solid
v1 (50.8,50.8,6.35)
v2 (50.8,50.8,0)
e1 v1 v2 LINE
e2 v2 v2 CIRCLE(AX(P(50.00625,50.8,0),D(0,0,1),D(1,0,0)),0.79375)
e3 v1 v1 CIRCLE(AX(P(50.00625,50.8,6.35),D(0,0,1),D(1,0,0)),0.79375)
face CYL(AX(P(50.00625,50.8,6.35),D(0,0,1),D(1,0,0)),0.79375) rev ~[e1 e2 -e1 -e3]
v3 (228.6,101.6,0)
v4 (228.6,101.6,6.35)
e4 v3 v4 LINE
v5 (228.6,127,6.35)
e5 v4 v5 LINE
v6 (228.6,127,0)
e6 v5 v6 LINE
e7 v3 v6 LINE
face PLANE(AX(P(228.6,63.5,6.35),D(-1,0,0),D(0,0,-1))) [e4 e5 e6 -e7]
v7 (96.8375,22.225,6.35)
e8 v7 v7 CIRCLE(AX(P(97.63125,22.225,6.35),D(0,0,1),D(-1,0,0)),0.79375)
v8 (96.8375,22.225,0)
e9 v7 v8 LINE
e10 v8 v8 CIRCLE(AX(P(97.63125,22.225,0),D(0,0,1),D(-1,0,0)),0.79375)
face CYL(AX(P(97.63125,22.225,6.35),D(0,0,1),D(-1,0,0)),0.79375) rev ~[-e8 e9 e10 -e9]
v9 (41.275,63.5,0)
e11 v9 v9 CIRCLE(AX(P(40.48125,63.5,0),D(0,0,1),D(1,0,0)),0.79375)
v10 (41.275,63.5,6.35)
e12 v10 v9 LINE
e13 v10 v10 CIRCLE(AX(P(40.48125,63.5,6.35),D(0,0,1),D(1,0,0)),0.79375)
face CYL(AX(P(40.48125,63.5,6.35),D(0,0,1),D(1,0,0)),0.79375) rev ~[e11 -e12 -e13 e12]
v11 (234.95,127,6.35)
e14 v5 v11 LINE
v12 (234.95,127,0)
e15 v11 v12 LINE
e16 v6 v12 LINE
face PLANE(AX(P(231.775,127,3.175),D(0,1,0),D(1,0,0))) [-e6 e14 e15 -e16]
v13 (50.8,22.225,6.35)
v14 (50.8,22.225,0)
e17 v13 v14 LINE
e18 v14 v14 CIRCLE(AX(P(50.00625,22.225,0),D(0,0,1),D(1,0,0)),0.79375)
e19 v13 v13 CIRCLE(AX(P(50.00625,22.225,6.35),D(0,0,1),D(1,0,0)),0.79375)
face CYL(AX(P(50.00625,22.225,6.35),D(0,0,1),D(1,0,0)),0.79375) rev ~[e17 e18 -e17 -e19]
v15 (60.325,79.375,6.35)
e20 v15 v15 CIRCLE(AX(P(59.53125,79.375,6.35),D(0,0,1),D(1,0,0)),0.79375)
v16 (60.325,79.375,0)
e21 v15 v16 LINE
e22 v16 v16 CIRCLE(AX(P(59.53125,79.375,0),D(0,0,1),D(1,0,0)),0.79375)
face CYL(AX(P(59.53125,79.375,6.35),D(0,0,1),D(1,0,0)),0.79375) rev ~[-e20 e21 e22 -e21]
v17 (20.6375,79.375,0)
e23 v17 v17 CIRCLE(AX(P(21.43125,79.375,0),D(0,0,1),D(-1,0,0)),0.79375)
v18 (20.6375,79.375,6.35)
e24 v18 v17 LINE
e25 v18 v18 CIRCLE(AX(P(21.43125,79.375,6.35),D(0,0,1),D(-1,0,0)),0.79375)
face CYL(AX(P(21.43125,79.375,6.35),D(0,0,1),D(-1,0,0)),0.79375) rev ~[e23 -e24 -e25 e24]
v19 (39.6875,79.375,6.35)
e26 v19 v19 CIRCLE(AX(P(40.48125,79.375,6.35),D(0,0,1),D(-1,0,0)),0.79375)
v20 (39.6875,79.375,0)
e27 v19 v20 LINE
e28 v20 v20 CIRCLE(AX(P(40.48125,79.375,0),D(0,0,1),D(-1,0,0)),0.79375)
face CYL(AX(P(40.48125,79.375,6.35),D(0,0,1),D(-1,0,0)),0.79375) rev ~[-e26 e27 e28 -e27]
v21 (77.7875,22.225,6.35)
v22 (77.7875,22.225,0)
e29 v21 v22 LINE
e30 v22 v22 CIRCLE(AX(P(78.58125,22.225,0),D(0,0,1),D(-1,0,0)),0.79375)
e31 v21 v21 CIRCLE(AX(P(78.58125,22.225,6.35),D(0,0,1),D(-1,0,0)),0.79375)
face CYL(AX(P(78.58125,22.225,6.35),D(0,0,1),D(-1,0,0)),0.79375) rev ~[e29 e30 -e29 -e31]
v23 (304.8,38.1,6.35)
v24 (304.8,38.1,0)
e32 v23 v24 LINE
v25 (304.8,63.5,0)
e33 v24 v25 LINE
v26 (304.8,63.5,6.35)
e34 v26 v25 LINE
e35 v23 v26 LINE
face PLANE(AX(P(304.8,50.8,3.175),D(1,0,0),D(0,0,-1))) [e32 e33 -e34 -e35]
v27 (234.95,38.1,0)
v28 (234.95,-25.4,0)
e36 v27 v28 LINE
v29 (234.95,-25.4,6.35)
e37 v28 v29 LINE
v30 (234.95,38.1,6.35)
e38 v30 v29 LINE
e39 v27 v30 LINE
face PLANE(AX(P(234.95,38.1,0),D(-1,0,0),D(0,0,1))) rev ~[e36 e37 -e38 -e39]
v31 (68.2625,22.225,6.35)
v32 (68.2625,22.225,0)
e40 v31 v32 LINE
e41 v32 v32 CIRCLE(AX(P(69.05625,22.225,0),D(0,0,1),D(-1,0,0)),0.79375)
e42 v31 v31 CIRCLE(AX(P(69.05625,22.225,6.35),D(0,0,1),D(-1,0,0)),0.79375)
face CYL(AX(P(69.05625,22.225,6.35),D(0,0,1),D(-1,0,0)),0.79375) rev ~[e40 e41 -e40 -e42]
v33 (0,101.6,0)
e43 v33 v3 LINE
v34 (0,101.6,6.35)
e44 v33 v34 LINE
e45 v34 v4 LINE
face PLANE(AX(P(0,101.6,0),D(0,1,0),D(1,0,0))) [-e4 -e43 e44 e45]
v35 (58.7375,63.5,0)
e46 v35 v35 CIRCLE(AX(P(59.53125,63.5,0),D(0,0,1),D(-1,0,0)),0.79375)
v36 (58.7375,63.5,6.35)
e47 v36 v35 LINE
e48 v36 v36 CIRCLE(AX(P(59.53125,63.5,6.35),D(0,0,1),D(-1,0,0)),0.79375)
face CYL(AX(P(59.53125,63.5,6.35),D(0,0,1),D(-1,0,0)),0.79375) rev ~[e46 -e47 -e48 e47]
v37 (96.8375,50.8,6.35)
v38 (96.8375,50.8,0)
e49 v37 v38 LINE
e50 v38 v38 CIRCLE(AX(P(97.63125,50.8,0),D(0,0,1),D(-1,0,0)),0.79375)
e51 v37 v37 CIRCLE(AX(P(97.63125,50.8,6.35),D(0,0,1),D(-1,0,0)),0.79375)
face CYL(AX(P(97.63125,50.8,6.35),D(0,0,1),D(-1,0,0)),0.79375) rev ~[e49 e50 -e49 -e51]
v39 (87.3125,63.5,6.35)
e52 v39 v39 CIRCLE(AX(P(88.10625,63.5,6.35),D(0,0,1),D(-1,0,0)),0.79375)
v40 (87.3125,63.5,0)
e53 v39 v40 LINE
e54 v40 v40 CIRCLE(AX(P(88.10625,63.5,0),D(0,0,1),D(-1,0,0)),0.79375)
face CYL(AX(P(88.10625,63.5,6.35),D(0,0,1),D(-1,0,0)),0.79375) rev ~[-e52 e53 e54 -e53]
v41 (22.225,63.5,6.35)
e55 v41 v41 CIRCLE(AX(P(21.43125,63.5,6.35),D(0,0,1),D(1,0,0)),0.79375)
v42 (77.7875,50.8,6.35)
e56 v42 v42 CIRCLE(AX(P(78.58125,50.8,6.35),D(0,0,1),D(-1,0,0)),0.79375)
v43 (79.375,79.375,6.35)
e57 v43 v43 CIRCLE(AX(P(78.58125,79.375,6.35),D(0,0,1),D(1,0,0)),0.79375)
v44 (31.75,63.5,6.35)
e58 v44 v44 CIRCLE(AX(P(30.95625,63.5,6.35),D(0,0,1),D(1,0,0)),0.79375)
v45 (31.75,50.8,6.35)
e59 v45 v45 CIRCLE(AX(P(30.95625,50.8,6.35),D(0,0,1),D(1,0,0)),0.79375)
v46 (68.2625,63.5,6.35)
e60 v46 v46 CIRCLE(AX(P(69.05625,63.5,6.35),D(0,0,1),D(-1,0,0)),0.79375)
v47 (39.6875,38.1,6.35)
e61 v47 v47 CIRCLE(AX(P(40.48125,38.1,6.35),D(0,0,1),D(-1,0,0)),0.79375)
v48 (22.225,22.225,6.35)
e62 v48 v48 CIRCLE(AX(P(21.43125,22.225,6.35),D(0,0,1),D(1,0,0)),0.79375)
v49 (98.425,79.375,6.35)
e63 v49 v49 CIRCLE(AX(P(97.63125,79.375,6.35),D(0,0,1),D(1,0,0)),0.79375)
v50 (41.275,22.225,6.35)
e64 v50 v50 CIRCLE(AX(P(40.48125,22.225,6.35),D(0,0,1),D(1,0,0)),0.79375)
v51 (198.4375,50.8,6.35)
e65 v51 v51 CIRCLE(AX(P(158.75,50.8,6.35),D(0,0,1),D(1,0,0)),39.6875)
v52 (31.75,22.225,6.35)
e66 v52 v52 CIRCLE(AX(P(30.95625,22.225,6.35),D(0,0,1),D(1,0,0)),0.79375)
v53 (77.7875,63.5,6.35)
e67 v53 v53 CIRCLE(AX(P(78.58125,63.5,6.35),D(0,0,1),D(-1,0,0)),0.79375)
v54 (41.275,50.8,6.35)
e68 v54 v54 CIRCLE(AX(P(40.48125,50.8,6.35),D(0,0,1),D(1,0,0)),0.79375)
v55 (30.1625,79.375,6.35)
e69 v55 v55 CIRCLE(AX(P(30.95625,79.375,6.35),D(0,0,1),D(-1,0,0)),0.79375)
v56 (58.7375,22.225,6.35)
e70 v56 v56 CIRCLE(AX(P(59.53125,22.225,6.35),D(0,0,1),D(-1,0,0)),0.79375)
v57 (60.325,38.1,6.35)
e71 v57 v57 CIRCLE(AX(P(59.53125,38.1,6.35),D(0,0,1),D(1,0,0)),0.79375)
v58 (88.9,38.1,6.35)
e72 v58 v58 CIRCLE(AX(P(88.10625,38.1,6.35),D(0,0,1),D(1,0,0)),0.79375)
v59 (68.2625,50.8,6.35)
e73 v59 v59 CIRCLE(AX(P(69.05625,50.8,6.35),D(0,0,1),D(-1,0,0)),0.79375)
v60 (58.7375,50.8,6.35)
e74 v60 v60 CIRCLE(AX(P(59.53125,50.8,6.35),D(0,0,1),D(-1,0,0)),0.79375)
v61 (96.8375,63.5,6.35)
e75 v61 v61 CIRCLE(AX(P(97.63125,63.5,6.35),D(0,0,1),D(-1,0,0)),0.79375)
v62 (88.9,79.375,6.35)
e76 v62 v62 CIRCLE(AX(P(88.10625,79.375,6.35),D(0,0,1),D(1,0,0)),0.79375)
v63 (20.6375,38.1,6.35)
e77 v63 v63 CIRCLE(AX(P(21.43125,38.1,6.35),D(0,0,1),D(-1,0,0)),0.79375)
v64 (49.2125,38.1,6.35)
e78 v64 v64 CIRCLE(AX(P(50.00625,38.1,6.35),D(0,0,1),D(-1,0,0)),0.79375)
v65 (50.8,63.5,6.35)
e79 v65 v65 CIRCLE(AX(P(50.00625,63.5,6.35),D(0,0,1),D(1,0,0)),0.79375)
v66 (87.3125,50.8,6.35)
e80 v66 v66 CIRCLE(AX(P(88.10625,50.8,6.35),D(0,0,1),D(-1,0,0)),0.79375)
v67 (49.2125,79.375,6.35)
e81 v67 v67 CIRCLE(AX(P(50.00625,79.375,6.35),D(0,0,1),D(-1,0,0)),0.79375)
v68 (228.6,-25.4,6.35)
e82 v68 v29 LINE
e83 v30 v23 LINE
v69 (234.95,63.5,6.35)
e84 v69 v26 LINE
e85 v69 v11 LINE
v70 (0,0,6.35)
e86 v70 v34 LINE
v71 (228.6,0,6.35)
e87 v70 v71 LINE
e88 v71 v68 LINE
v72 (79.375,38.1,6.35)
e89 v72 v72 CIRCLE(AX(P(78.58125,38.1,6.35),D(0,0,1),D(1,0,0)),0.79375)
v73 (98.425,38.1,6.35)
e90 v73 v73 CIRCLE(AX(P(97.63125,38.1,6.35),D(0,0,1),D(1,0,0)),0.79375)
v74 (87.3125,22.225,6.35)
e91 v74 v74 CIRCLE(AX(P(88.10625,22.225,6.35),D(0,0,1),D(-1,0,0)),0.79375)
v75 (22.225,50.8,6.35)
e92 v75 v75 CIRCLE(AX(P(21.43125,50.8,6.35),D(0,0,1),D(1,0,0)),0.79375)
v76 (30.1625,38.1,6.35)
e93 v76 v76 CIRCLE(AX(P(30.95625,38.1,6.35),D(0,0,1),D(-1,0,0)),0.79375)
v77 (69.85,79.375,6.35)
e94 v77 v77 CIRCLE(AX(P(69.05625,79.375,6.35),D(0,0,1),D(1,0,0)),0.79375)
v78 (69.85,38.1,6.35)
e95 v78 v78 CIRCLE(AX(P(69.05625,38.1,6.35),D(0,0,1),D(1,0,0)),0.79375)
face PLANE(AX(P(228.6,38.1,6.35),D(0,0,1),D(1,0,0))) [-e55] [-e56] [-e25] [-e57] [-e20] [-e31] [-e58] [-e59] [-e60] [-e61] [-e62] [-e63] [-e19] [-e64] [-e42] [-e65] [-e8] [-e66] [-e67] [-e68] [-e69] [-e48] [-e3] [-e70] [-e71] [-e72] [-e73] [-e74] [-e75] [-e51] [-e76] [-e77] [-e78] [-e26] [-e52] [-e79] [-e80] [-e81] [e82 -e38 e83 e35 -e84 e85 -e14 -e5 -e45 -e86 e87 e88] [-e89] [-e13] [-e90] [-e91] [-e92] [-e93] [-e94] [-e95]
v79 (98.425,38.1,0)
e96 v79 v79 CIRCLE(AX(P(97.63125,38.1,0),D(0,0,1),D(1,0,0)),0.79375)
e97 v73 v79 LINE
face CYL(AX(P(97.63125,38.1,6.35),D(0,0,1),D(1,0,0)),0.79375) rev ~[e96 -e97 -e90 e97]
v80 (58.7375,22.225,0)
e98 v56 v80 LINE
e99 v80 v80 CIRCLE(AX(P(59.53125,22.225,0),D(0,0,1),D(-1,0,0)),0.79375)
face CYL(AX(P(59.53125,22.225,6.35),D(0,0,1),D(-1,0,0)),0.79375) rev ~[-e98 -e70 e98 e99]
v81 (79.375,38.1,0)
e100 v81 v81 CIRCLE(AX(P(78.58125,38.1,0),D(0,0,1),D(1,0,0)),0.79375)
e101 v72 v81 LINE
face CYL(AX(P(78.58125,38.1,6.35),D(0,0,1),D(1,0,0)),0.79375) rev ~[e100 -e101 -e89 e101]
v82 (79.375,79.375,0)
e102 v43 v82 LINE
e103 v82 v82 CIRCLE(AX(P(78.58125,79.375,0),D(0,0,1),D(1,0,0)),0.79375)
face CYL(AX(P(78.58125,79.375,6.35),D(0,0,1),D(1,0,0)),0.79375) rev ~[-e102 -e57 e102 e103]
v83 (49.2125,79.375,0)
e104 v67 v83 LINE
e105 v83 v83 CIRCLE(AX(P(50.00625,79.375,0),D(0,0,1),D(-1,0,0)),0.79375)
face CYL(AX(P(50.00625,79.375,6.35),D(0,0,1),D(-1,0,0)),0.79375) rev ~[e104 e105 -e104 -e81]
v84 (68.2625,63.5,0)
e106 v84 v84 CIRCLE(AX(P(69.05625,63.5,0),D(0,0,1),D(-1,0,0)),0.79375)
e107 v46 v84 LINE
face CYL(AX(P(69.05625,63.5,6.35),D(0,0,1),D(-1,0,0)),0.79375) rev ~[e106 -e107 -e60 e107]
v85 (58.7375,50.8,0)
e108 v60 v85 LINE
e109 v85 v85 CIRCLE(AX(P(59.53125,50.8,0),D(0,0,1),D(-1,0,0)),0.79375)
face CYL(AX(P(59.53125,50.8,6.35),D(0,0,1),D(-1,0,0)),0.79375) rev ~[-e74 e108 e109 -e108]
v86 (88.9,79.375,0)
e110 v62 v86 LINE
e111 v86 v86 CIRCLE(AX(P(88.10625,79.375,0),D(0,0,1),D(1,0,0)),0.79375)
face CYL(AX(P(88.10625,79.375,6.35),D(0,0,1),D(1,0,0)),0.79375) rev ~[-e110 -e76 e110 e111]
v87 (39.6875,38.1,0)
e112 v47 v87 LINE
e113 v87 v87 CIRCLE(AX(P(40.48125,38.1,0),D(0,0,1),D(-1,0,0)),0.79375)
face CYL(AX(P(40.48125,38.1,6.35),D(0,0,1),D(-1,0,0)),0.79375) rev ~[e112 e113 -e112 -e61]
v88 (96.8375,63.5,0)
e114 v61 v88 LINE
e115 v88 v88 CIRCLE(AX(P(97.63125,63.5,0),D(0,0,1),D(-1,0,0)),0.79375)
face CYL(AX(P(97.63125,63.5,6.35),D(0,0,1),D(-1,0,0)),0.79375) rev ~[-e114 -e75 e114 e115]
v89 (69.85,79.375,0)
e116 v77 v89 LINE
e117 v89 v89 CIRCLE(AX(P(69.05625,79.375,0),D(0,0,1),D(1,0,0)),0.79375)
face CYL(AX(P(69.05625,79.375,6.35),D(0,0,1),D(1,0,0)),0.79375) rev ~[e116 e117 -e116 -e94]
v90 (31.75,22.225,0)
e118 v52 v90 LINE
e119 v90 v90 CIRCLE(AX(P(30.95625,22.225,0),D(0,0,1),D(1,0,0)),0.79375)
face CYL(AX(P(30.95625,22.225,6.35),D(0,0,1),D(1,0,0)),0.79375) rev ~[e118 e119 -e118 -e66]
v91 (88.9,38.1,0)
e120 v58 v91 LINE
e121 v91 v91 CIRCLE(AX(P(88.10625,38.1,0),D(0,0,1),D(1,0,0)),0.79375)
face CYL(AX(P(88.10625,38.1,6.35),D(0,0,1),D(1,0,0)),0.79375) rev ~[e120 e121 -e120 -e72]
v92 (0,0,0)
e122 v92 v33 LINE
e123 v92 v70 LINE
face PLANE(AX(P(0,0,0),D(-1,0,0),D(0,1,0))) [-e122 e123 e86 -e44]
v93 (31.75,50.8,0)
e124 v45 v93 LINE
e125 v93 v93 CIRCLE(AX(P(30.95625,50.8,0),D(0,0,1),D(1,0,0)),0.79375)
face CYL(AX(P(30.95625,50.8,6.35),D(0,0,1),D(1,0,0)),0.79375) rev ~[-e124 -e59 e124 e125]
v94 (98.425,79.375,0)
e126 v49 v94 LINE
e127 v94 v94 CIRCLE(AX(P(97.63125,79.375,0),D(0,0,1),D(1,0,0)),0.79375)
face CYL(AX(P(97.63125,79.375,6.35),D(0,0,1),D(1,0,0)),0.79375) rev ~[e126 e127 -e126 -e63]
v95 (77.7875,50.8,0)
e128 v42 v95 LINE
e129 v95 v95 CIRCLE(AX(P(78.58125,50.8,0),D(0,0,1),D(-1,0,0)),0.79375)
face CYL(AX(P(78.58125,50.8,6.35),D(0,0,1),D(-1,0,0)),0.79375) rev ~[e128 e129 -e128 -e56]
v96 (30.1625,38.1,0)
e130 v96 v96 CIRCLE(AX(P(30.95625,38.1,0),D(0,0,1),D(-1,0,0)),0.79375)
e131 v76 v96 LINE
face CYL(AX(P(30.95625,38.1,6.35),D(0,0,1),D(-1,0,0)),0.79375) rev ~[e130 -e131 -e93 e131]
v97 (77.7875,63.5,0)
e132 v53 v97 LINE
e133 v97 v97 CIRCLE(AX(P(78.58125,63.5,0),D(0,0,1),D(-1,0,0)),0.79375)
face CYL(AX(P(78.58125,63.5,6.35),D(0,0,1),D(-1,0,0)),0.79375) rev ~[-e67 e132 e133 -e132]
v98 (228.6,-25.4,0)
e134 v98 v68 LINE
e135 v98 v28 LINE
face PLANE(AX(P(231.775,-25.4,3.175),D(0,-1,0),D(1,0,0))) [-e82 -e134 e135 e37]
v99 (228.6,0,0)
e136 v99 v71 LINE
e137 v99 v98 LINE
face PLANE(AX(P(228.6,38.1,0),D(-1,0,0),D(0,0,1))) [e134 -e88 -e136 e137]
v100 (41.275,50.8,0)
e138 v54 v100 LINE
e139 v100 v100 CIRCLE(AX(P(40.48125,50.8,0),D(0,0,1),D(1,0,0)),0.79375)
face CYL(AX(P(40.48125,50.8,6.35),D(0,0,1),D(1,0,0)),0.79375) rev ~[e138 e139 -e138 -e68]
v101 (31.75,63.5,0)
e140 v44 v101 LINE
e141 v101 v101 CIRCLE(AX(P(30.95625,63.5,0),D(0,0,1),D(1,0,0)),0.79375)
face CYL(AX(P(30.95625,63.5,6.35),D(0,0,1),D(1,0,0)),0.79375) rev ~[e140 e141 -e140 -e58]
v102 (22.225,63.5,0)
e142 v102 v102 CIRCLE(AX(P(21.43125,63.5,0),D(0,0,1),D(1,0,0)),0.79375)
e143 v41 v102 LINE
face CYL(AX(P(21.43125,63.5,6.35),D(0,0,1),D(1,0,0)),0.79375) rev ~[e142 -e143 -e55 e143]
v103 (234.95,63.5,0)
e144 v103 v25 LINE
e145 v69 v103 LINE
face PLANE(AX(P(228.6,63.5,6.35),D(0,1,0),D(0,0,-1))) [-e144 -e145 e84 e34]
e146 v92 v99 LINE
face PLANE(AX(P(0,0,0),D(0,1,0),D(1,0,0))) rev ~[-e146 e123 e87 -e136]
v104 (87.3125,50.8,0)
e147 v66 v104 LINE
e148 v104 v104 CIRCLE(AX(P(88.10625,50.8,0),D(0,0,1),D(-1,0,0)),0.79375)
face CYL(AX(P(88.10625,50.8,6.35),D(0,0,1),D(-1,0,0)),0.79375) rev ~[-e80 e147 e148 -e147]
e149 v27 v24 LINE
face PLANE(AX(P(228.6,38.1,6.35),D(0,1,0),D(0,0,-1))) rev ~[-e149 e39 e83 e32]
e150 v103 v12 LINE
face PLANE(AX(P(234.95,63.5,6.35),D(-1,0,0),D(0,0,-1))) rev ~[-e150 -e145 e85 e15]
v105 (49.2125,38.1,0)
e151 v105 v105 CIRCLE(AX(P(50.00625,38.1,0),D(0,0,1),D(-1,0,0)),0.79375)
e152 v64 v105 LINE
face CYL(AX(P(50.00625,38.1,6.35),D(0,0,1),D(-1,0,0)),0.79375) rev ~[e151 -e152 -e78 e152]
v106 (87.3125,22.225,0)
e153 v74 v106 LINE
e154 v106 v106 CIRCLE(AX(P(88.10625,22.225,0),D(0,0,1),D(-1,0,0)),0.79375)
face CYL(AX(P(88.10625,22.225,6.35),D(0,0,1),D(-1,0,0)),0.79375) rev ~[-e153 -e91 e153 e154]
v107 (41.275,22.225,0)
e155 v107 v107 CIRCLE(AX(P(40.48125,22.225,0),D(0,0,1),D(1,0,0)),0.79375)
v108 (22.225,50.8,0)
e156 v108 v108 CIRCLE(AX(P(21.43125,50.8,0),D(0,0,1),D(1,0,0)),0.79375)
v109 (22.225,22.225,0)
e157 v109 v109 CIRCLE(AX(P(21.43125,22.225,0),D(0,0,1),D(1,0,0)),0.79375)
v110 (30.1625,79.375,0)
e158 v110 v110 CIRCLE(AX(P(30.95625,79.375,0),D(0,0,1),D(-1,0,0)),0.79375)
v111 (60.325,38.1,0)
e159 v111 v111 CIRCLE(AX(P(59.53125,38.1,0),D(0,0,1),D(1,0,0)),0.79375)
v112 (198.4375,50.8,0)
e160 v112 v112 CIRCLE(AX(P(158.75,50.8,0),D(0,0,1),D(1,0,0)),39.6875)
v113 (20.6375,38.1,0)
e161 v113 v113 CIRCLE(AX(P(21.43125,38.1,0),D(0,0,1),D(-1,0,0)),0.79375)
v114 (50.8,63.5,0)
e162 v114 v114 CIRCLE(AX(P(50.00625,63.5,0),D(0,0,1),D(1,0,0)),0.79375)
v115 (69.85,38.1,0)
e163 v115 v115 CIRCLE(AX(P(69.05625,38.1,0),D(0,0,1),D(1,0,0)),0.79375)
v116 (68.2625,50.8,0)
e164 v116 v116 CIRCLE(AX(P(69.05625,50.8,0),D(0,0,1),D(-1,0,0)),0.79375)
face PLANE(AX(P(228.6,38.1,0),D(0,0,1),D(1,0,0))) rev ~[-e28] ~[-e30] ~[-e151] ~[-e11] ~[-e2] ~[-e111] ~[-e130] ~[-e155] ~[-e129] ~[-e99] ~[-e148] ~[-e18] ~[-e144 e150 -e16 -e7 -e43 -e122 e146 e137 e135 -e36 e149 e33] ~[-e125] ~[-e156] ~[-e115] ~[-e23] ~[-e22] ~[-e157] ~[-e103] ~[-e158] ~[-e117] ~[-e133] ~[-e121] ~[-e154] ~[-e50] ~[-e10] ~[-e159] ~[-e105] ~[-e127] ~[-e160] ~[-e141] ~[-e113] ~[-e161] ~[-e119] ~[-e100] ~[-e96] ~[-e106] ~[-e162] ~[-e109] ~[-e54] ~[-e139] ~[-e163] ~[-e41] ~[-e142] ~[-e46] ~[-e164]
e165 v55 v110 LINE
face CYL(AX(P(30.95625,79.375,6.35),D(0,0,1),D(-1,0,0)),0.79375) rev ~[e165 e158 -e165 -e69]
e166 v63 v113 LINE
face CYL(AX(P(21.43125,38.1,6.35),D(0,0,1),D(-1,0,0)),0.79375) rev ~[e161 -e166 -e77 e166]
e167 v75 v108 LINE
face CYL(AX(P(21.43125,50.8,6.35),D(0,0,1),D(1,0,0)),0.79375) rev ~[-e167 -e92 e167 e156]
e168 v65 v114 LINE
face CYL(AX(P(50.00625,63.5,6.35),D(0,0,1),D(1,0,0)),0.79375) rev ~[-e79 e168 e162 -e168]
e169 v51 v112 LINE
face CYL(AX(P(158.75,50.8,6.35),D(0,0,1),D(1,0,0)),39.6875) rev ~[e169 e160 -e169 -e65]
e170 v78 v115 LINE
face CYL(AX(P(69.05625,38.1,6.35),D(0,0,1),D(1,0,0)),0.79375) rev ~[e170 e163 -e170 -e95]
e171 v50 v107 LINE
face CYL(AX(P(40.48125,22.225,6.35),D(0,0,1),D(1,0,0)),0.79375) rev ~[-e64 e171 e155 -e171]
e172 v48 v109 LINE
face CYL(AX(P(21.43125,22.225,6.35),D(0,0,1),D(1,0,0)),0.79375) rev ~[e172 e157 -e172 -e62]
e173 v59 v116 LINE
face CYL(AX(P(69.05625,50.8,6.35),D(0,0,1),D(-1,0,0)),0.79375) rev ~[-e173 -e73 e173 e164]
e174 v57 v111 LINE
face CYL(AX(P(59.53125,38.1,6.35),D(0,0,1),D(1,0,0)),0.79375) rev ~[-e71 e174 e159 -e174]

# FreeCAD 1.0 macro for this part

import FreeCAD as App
import Part
import Sketcher
Q = App.Units.Quantity

doc = App.newDocument("Part")
params = doc.addObject("Spreadsheet::Sheet", "Params")
for row, (alias, value) in enumerate([
    ("sketch1_width", "9 in"),
    ("sketch1_height", "4 in"),
    ("pad1_length", "0.25 in"),
    ("sketch2_diameter", "3.125 in"),
    ("pocket1_length", "3 in"),
    ("sketch3_width", "1 in"),
    ("sketch3_height", "0.25 in"),
    ("pad2_length", "3 in"),
    ("sketch4_width", "0.25 in"),
    ("pad3_length", "2.5 in"),
    ("sketch5_width", "0.25 in"),
    ("pad4_length", "2.5 in"),
    ("sketch6_diameter", "0.0625 in"),
    ("pocket2_length", "2 in"),
], start=1):
    params.set(f"A{row}", alias)
    params.set(f"B{row}", "=" + value)
    params.setAlias(f"B{row}", alias)

body = doc.addObject("PartDesign::Body", "Body")

# Sketch on XY plane
sketch1 = body.newObject("Sketcher::SketchObject", "Sketch")
sketch1.AttachmentSupport = (doc.getObject("XY_Plane"), [""])
sketch1.MapMode = "FlatFace"
sketch1.addGeometry(Part.LineSegment(App.Vector(0, 101.6, 0), App.Vector(0, 0, 0)), False)
sketch1.addGeometry(Part.LineSegment(App.Vector(0, 0, 0), App.Vector(228.6, 0, 0)), False)
sketch1.addGeometry(Part.LineSegment(App.Vector(228.6, 0, 0), App.Vector(228.6, 101.6, 0)), False)
sketch1.addGeometry(Part.LineSegment(App.Vector(228.6, 101.6, 0), App.Vector(0, 101.6, 0)), False)
sketch1.addConstraint(Sketcher.Constraint("Coincident", 0, 2, 1, 1))
sketch1.addConstraint(Sketcher.Constraint("Coincident", 1, 2, 2, 1))
sketch1.addConstraint(Sketcher.Constraint("Coincident", 2, 2, 3, 1))
sketch1.addConstraint(Sketcher.Constraint("Coincident", 3, 2, 0, 1))
sketch1.addConstraint(Sketcher.Constraint("Vertical", 0))
sketch1.addConstraint(Sketcher.Constraint("Horizontal", 1))
sketch1.addConstraint(Sketcher.Constraint("Vertical", 2))
sketch1.addConstraint(Sketcher.Constraint("Horizontal", 3))
sketch1.addConstraint(Sketcher.Constraint("Coincident", 0, 2, -1, 1))
sketch1.addConstraint(Sketcher.Constraint("DistanceX", 1, 1, 1, 2, Q("9 in")))
sketch1.addConstraint(Sketcher.Constraint("DistanceY", 0, 2, 0, 1, Q("4 in")))
sketch1.setExpression("Constraints[9]", "Params.sketch1_width")
sketch1.setExpression("Constraints[10]", "Params.sketch1_height")
pad1 = body.newObject("PartDesign::Pad", "Pad")
pad1.Profile = sketch1
pad1.setExpression("Length", "Params.pad1_length")

# Sketch on XY plane
sketch2 = body.newObject("Sketcher::SketchObject", "Sketch001")
sketch2.AttachmentSupport = (doc.getObject("XY_Plane"), [""])
sketch2.MapMode = "FlatFace"
sketch2.AttachmentOffset = App.Placement(App.Vector(0, 0, 0.25 * 25.4), App.Rotation())
sketch2.addGeometry(Part.Circle(App.Vector(158.75, 50.8, 0), App.Vector(0, 0, 1), 39.6875), False)
sketch2.addConstraint(Sketcher.Constraint("Diameter", 0, Q("3.125 in")))
sketch2.addConstraint(Sketcher.Constraint("DistanceY", -1, 1, 0, 3, Q("2 in")))
sketch2.addConstraint(Sketcher.Constraint("DistanceX", -1, 1, 0, 3, Q("6.25 in")))
sketch2.setExpression("Constraints[0]", "Params.sketch2_diameter")
pocket1 = body.newObject("PartDesign::Pocket", "Pocket")
pocket1.Profile = sketch2
pocket1.setExpression("Length", "Params.pocket1_length")

# Sketch on YZ plane
sketch3 = body.newObject("Sketcher::SketchObject", "Sketch002")
sketch3.AttachmentSupport = (doc.getObject("YZ_Plane"), [""])
sketch3.MapMode = "FlatFace"
sketch3.AttachmentOffset = App.Placement(App.Vector(0, 0, 9 * 25.4), App.Rotation())
sketch3.addGeometry(Part.LineSegment(App.Vector(63.5, 6.35, 0), App.Vector(38.1, 6.35, 0)), False)
sketch3.addGeometry(Part.LineSegment(App.Vector(38.1, 6.35, 0), App.Vector(38.1, 0, 0)), False)
sketch3.addGeometry(Part.LineSegment(App.Vector(38.1, 0, 0), App.Vector(63.5, 0, 0)), False)
sketch3.addGeometry(Part.LineSegment(App.Vector(63.5, 0, 0), App.Vector(63.5, 6.35, 0)), False)
sketch3.addConstraint(Sketcher.Constraint("Coincident", 0, 2, 1, 1))
sketch3.addConstraint(Sketcher.Constraint("Coincident", 1, 2, 2, 1))
sketch3.addConstraint(Sketcher.Constraint("Coincident", 2, 2, 3, 1))
sketch3.addConstraint(Sketcher.Constraint("Coincident", 3, 2, 0, 1))
sketch3.addConstraint(Sketcher.Constraint("Horizontal", 0))
sketch3.addConstraint(Sketcher.Constraint("Vertical", 1))
sketch3.addConstraint(Sketcher.Constraint("Horizontal", 2))
sketch3.addConstraint(Sketcher.Constraint("Vertical", 3))
sketch3.addConstraint(Sketcher.Constraint("PointOnObject", 1, 2, -1))
sketch3.addConstraint(Sketcher.Constraint("DistanceX", 0, 2, 0, 1, Q("1 in")))
sketch3.addConstraint(Sketcher.Constraint("DistanceY", 1, 2, 1, 1, Q("0.25 in")))
sketch3.addConstraint(Sketcher.Constraint("DistanceX", -1, 1, 0, 2, Q("1.5 in")))
sketch3.setExpression("Constraints[9]", "Params.sketch3_width")
sketch3.setExpression("Constraints[10]", "Params.sketch3_height")
pad2 = body.newObject("PartDesign::Pad", "Pad001")
pad2.Profile = sketch3
pad2.setExpression("Length", "Params.pad2_length")

# Sketch on XZ plane
sketch4 = body.newObject("Sketcher::SketchObject", "Sketch003")
sketch4.AttachmentSupport = (doc.getObject("XZ_Plane"), [""])
sketch4.MapMode = "FlatFace"
sketch4.AttachmentOffset = App.Placement(App.Vector(0, 0, -2.5 * 25.4), App.Rotation())
sketch4.addGeometry(Part.LineSegment(App.Vector(228.6, 0, 0), App.Vector(228.6, 6.35, 0)), False)
sketch4.addGeometry(Part.LineSegment(App.Vector(228.6, 6.35, 0), App.Vector(234.95, 6.35, 0)), False)
sketch4.addGeometry(Part.LineSegment(App.Vector(234.95, 6.35, 0), App.Vector(234.95, 0, 0)), False)
sketch4.addGeometry(Part.LineSegment(App.Vector(234.95, 0, 0), App.Vector(228.6, 0, 0)), False)
sketch4.addConstraint(Sketcher.Constraint("Coincident", 0, 2, 1, 1))
sketch4.addConstraint(Sketcher.Constraint("Coincident", 1, 2, 2, 1))
sketch4.addConstraint(Sketcher.Constraint("Coincident", 2, 2, 3, 1))
sketch4.addConstraint(Sketcher.Constraint("Coincident", 3, 2, 0, 1))
sketch4.addConstraint(Sketcher.Constraint("Vertical", 0))
sketch4.addConstraint(Sketcher.Constraint("Horizontal", 1))
sketch4.addConstraint(Sketcher.Constraint("Vertical", 2))
sketch4.addConstraint(Sketcher.Constraint("Horizontal", 3))
sketch4.addConstraint(Sketcher.Constraint("PointOnObject", 2, 2, -1))
sketch4.addConstraint(Sketcher.Constraint("Equal", 3, 0))
sketch4.addConstraint(Sketcher.Constraint("DistanceX", -1, 1, 0, 2, Q("9 in")))
sketch4.addConstraint(Sketcher.Constraint("DistanceX", 1, 1, 1, 2, Q("0.25 in")))
sketch4.setExpression("Constraints[11]", "Params.sketch4_width")
pad3 = body.newObject("PartDesign::Pad", "Pad002")
pad3.Profile = sketch4
pad3.setExpression("Length", "Params.pad3_length")
pad3.Reversed = True

# Sketch on XZ plane
sketch5 = body.newObject("Sketcher::SketchObject", "Sketch004")
sketch5.AttachmentSupport = (doc.getObject("XZ_Plane"), [""])
sketch5.MapMode = "FlatFace"
sketch5.AttachmentOffset = App.Placement(App.Vector(0, 0, -1.5 * 25.4), App.Rotation())
sketch5.addGeometry(Part.LineSegment(App.Vector(228.6, 6.35, 0), App.Vector(228.6, 0, 0)), False)
sketch5.addGeometry(Part.LineSegment(App.Vector(228.6, 0, 0), App.Vector(234.95, 0, 0)), False)
sketch5.addGeometry(Part.LineSegment(App.Vector(234.95, 0, 0), App.Vector(234.95, 6.35, 0)), False)
sketch5.addGeometry(Part.LineSegment(App.Vector(234.95, 6.35, 0), App.Vector(228.6, 6.35, 0)), False)
sketch5.addConstraint(Sketcher.Constraint("Coincident", 0, 2, 1, 1))
sketch5.addConstraint(Sketcher.Constraint("Coincident", 1, 2, 2, 1))
sketch5.addConstraint(Sketcher.Constraint("Coincident", 2, 2, 3, 1))
sketch5.addConstraint(Sketcher.Constraint("Coincident", 3, 2, 0, 1))
sketch5.addConstraint(Sketcher.Constraint("Vertical", 0))
sketch5.addConstraint(Sketcher.Constraint("Horizontal", 1))
sketch5.addConstraint(Sketcher.Constraint("Vertical", 2))
sketch5.addConstraint(Sketcher.Constraint("Horizontal", 3))
sketch5.addConstraint(Sketcher.Constraint("PointOnObject", 0, 2, -1))
sketch5.addConstraint(Sketcher.Constraint("Equal", 3, 0))
sketch5.addConstraint(Sketcher.Constraint("DistanceX", -1, 1, 0, 2, Q("9 in")))
sketch5.addConstraint(Sketcher.Constraint("DistanceX", 1, 1, 1, 2, Q("0.25 in")))
sketch5.setExpression("Constraints[11]", "Params.sketch5_width")
pad4 = body.newObject("PartDesign::Pad", "Pad003")
pad4.Profile = sketch5
pad4.setExpression("Length", "Params.pad4_length")

# Sketch on XY plane
sketch6 = body.newObject("Sketcher::SketchObject", "Sketch005")
sketch6.AttachmentSupport = (doc.getObject("XY_Plane"), [""])
sketch6.MapMode = "FlatFace"
sketch6.AttachmentOffset = App.Placement(App.Vector(0, 0, 0.25 * 25.4), App.Rotation())
sketch6.addGeometry(Part.Circle(App.Vector(59.53125, 50.8, 0), App.Vector(0, 0, 1), 0.79375), False)
sketch6.addGeometry(Part.Circle(App.Vector(59.53125, 79.375, 0), App.Vector(0, 0, 1), 0.79375), False)
sketch6.addGeometry(Part.Circle(App.Vector(88.10625, 50.8, 0), App.Vector(0, 0, 1), 0.79375), False)
sketch6.addGeometry(Part.Circle(App.Vector(59.53125, 38.1, 0), App.Vector(0, 0, 1), 0.79375), False)
sketch6.addGeometry(Part.Circle(App.Vector(30.95625, 50.8, 0), App.Vector(0, 0, 1), 0.79375), False)
sketch6.addGeometry(Part.Circle(App.Vector(50.00625, 50.8, 0), App.Vector(0, 0, 1), 0.79375), False)
sketch6.addGeometry(Part.Circle(App.Vector(59.53125, 63.5, 0), App.Vector(0, 0, 1), 0.79375), False)
sketch6.addGeometry(Part.Circle(App.Vector(78.58125, 50.8, 0), App.Vector(0, 0, 1), 0.79375), False)
sketch6.addGeometry(Part.Circle(App.Vector(59.53125, 22.225, 0), App.Vector(0, 0, 1), 0.79375), False)
sketch6.addGeometry(Part.Circle(App.Vector(97.63125, 50.8, 0), App.Vector(0, 0, 1), 0.79375), False)
sketch6.addGeometry(Part.Circle(App.Vector(21.43125, 50.8, 0), App.Vector(0, 0, 1), 0.79375), False)
sketch6.addGeometry(Part.Circle(App.Vector(69.05625, 79.375, 0), App.Vector(0, 0, 1), 0.79375), False)
sketch6.addGeometry(Part.Circle(App.Vector(40.48125, 50.8, 0), App.Vector(0, 0, 1), 0.79375), False)
sketch6.addGeometry(Part.Circle(App.Vector(69.05625, 63.5, 0), App.Vector(0, 0, 1), 0.79375), False)
sketch6.addGeometry(Part.Circle(App.Vector(69.05625, 50.8, 0), App.Vector(0, 0, 1), 0.79375), False)
sketch6.addGeometry(Part.Circle(App.Vector(69.05625, 38.1, 0), App.Vector(0, 0, 1), 0.79375), False)
sketch6.addGeometry(Part.Circle(App.Vector(69.05625, 22.225, 0), App.Vector(0, 0, 1), 0.79375), False)
sketch6.addGeometry(Part.Circle(App.Vector(78.58125, 79.375, 0), App.Vector(0, 0, 1), 0.79375), False)
sketch6.addGeometry(Part.Circle(App.Vector(78.58125, 63.5, 0), App.Vector(0, 0, 1), 0.79375), False)
sketch6.addGeometry(Part.Circle(App.Vector(78.58125, 38.1, 0), App.Vector(0, 0, 1), 0.79375), False)
sketch6.addGeometry(Part.Circle(App.Vector(78.58125, 22.225, 0), App.Vector(0, 0, 1), 0.79375), False)
sketch6.addGeometry(Part.Circle(App.Vector(88.10625, 79.375, 0), App.Vector(0, 0, 1), 0.79375), False)
sketch6.addGeometry(Part.Circle(App.Vector(88.10625, 63.5, 0), App.Vector(0, 0, 1), 0.79375), False)
sketch6.addGeometry(Part.Circle(App.Vector(88.10625, 38.1, 0), App.Vector(0, 0, 1), 0.79375), False)
sketch6.addGeometry(Part.Circle(App.Vector(88.10625, 22.225, 0), App.Vector(0, 0, 1), 0.79375), False)
sketch6.addGeometry(Part.Circle(App.Vector(97.63125, 79.375, 0), App.Vector(0, 0, 1), 0.79375), False)
sketch6.addGeometry(Part.Circle(App.Vector(97.63125, 63.5, 0), App.Vector(0, 0, 1), 0.79375), False)
sketch6.addGeometry(Part.Circle(App.Vector(97.63125, 38.1, 0), App.Vector(0, 0, 1), 0.79375), False)
sketch6.addGeometry(Part.Circle(App.Vector(97.63125, 22.225, 0), App.Vector(0, 0, 1), 0.79375), False)
sketch6.addGeometry(Part.Circle(App.Vector(21.43125, 22.225, 0), App.Vector(0, 0, 1), 0.79375), False)
sketch6.addGeometry(Part.Circle(App.Vector(21.43125, 38.1, 0), App.Vector(0, 0, 1), 0.79375), False)
sketch6.addGeometry(Part.Circle(App.Vector(21.43125, 63.5, 0), App.Vector(0, 0, 1), 0.79375), False)
sketch6.addGeometry(Part.Circle(App.Vector(21.43125, 79.375, 0), App.Vector(0, 0, 1), 0.79375), False)
sketch6.addGeometry(Part.Circle(App.Vector(30.95625, 22.225, 0), App.Vector(0, 0, 1), 0.79375), False)
sketch6.addGeometry(Part.Circle(App.Vector(30.95625, 38.1, 0), App.Vector(0, 0, 1), 0.79375), False)
sketch6.addGeometry(Part.Circle(App.Vector(30.95625, 63.5, 0), App.Vector(0, 0, 1), 0.79375), False)
sketch6.addGeometry(Part.Circle(App.Vector(30.95625, 79.375, 0), App.Vector(0, 0, 1), 0.79375), False)
sketch6.addGeometry(Part.Circle(App.Vector(40.48125, 22.225, 0), App.Vector(0, 0, 1), 0.79375), False)
sketch6.addGeometry(Part.Circle(App.Vector(40.48125, 38.1, 0), App.Vector(0, 0, 1), 0.79375), False)
sketch6.addGeometry(Part.Circle(App.Vector(40.48125, 63.5, 0), App.Vector(0, 0, 1), 0.79375), False)
sketch6.addGeometry(Part.Circle(App.Vector(40.48125, 79.375, 0), App.Vector(0, 0, 1), 0.79375), False)
sketch6.addGeometry(Part.Circle(App.Vector(50.00625, 22.225, 0), App.Vector(0, 0, 1), 0.79375), False)
sketch6.addGeometry(Part.Circle(App.Vector(50.00625, 38.1, 0), App.Vector(0, 0, 1), 0.79375), False)
sketch6.addGeometry(Part.Circle(App.Vector(50.00625, 63.5, 0), App.Vector(0, 0, 1), 0.79375), False)
sketch6.addGeometry(Part.Circle(App.Vector(50.00625, 79.375, 0), App.Vector(0, 0, 1), 0.79375), False)
sketch6.addConstraint(Sketcher.Constraint("Equal", 0, 1))
sketch6.addConstraint(Sketcher.Constraint("Equal", 1, 2))
sketch6.addConstraint(Sketcher.Constraint("Equal", 2, 3))
sketch6.addConstraint(Sketcher.Constraint("Equal", 3, 4))
sketch6.addConstraint(Sketcher.Constraint("Equal", 4, 5))
sketch6.addConstraint(Sketcher.Constraint("Equal", 5, 6))
sketch6.addConstraint(Sketcher.Constraint("Equal", 6, 7))
sketch6.addConstraint(Sketcher.Constraint("Equal", 7, 8))
sketch6.addConstraint(Sketcher.Constraint("Equal", 8, 9))
sketch6.addConstraint(Sketcher.Constraint("Equal", 9, 10))
sketch6.addConstraint(Sketcher.Constraint("Equal", 10, 11))
sketch6.addConstraint(Sketcher.Constraint("Equal", 11, 12))
sketch6.addConstraint(Sketcher.Constraint("Equal", 12, 13))
sketch6.addConstraint(Sketcher.Constraint("Equal", 13, 14))
sketch6.addConstraint(Sketcher.Constraint("Equal", 14, 15))
sketch6.addConstraint(Sketcher.Constraint("Equal", 15, 16))
sketch6.addConstraint(Sketcher.Constraint("Equal", 16, 17))
sketch6.addConstraint(Sketcher.Constraint("Equal", 17, 18))
sketch6.addConstraint(Sketcher.Constraint("Equal", 18, 19))
sketch6.addConstraint(Sketcher.Constraint("Equal", 19, 20))
sketch6.addConstraint(Sketcher.Constraint("Equal", 20, 21))
sketch6.addConstraint(Sketcher.Constraint("Equal", 21, 22))
sketch6.addConstraint(Sketcher.Constraint("Equal", 22, 23))
sketch6.addConstraint(Sketcher.Constraint("Equal", 23, 24))
sketch6.addConstraint(Sketcher.Constraint("Equal", 24, 25))
sketch6.addConstraint(Sketcher.Constraint("Equal", 25, 26))
sketch6.addConstraint(Sketcher.Constraint("Equal", 26, 27))
sketch6.addConstraint(Sketcher.Constraint("Equal", 27, 28))
sketch6.addConstraint(Sketcher.Constraint("Equal", 28, 29))
sketch6.addConstraint(Sketcher.Constraint("Equal", 29, 30))
sketch6.addConstraint(Sketcher.Constraint("Equal", 30, 31))
sketch6.addConstraint(Sketcher.Constraint("Equal", 31, 32))
sketch6.addConstraint(Sketcher.Constraint("Equal", 32, 33))
sketch6.addConstraint(Sketcher.Constraint("Equal", 33, 34))
sketch6.addConstraint(Sketcher.Constraint("Equal", 34, 35))
sketch6.addConstraint(Sketcher.Constraint("Equal", 35, 36))
sketch6.addConstraint(Sketcher.Constraint("Equal", 36, 37))
sketch6.addConstraint(Sketcher.Constraint("Equal", 37, 38))
sketch6.addConstraint(Sketcher.Constraint("Equal", 38, 39))
sketch6.addConstraint(Sketcher.Constraint("Equal", 39, 40))
sketch6.addConstraint(Sketcher.Constraint("Equal", 40, 41))
sketch6.addConstraint(Sketcher.Constraint("Equal", 41, 42))
sketch6.addConstraint(Sketcher.Constraint("Equal", 42, 43))
sketch6.addConstraint(Sketcher.Constraint("Equal", 43, 44))
sketch6.addConstraint(Sketcher.Constraint("Horizontal", 0, 3, 2, 3))
sketch6.addConstraint(Sketcher.Constraint("Horizontal", 2, 3, 4, 3))
sketch6.addConstraint(Sketcher.Constraint("Horizontal", 4, 3, 5, 3))
sketch6.addConstraint(Sketcher.Constraint("Horizontal", 5, 3, 7, 3))
sketch6.addConstraint(Sketcher.Constraint("Horizontal", 7, 3, 9, 3))
sketch6.addConstraint(Sketcher.Constraint("Horizontal", 9, 3, 10, 3))
sketch6.addConstraint(Sketcher.Constraint("Horizontal", 1, 3, 11, 3))
sketch6.addConstraint(Sketcher.Constraint("Horizontal", 10, 3, 12, 3))
sketch6.addConstraint(Sketcher.Constraint("Horizontal", 6, 3, 13, 3))
sketch6.addConstraint(Sketcher.Constraint("Horizontal", 12, 3, 14, 3))
sketch6.addConstraint(Sketcher.Constraint("Horizontal", 3, 3, 15, 3))
sketch6.addConstraint(Sketcher.Constraint("Horizontal", 8, 3, 16, 3))
sketch6.addConstraint(Sketcher.Constraint("Horizontal", 11, 3, 17, 3))
sketch6.addConstraint(Sketcher.Constraint("Horizontal", 13, 3, 18, 3))
sketch6.addConstraint(Sketcher.Constraint("Horizontal", 15, 3, 19, 3))
sketch6.addConstraint(Sketcher.Constraint("Horizontal", 16, 3, 20, 3))
sketch6.addConstraint(Sketcher.Constraint("Horizontal", 17, 3, 21, 3))
sketch6.addConstraint(Sketcher.Constraint("Horizontal", 18, 3, 22, 3))
sketch6.addConstraint(Sketcher.Constraint("Horizontal", 19, 3, 23, 3))
sketch6.addConstraint(Sketcher.Constraint("Horizontal", 20, 3, 24, 3))
sketch6.addConstraint(Sketcher.Constraint("Horizontal", 21, 3, 25, 3))
sketch6.addConstraint(Sketcher.Constraint("Horizontal", 22, 3, 26, 3))
sketch6.addConstraint(Sketcher.Constraint("Horizontal", 23, 3, 27, 3))
sketch6.addConstraint(Sketcher.Constraint("Horizontal", 24, 3, 28, 3))
sketch6.addConstraint(Sketcher.Constraint("Horizontal", 28, 3, 29, 3))
sketch6.addConstraint(Sketcher.Constraint("Horizontal", 27, 3, 30, 3))
sketch6.addConstraint(Sketcher.Constraint("Horizontal", 26, 3, 31, 3))
sketch6.addConstraint(Sketcher.Constraint("Horizontal", 25, 3, 32, 3))
sketch6.addConstraint(Sketcher.Constraint("Horizontal", 29, 3, 33, 3))
sketch6.addConstraint(Sketcher.Constraint("Horizontal", 30, 3, 34, 3))
sketch6.addConstraint(Sketcher.Constraint("Horizontal", 31, 3, 35, 3))
sketch6.addConstraint(Sketcher.Constraint("Horizontal", 32, 3, 36, 3))
sketch6.addConstraint(Sketcher.Constraint("Horizontal", 33, 3, 37, 3))
sketch6.addConstraint(Sketcher.Constraint("Horizontal", 34, 3, 38, 3))
sketch6.addConstraint(Sketcher.Constraint("Horizontal", 35, 3, 39, 3))
sketch6.addConstraint(Sketcher.Constraint("Horizontal", 36, 3, 40, 3))
sketch6.addConstraint(Sketcher.Constraint("Horizontal", 37, 3, 41, 3))
sketch6.addConstraint(Sketcher.Constraint("Horizontal", 38, 3, 42, 3))
sketch6.addConstraint(Sketcher.Constraint("Horizontal", 39, 3, 43, 3))
sketch6.addConstraint(Sketcher.Constraint("Horizontal", 40, 3, 44, 3))
sketch6.addConstraint(Sketcher.Constraint("Vertical", 0, 3, 1, 3))
sketch6.addConstraint(Sketcher.Constraint("Vertical", 1, 3, 3, 3))
sketch6.addConstraint(Sketcher.Constraint("Vertical", 3, 3, 6, 3))
sketch6.addConstraint(Sketcher.Constraint("Vertical", 6, 3, 8, 3))
sketch6.addConstraint(Sketcher.Constraint("Vertical", 11, 3, 13, 3))
sketch6.addConstraint(Sketcher.Constraint("Vertical", 13, 3, 14, 3))
sketch6.addConstraint(Sketcher.Constraint("Vertical", 14, 3, 15, 3))
sketch6.addConstraint(Sketcher.Constraint("Vertical", 15, 3, 16, 3))
sketch6.addConstraint(Sketcher.Constraint("Vertical", 7, 3, 17, 3))
sketch6.addConstraint(Sketcher.Constraint("Vertical", 17, 3, 18, 3))
sketch6.addConstraint(Sketcher.Constraint("Vertical", 18, 3, 19, 3))
sketch6.addConstraint(Sketcher.Constraint("Vertical", 19, 3, 20, 3))
sketch6.addConstraint(Sketcher.Constraint("Vertical", 2, 3, 21, 3))
sketch6.addConstraint(Sketcher.Constraint("Vertical", 21, 3, 22, 3))
sketch6.addConstraint(Sketcher.Constraint("Vertical", 22, 3, 23, 3))
sketch6.addConstraint(Sketcher.Constraint("Vertical", 23, 3, 24, 3))
sketch6.addConstraint(Sketcher.Constraint("Vertical", 9, 3, 25, 3))
sketch6.addConstraint(Sketcher.Constraint("Vertical", 25, 3, 26, 3))
sketch6.addConstraint(Sketcher.Constraint("Vertical", 26, 3, 27, 3))
sketch6.addConstraint(Sketcher.Constraint("Vertical", 27, 3, 28, 3))
sketch6.addConstraint(Sketcher.Constraint("Vertical", 10, 3, 29, 3))
sketch6.addConstraint(Sketcher.Constraint("Vertical", 29, 3, 30, 3))
sketch6.addConstraint(Sketcher.Constraint("Vertical", 30, 3, 31, 3))
sketch6.addConstraint(Sketcher.Constraint("Vertical", 31, 3, 32, 3))
sketch6.addConstraint(Sketcher.Constraint("Vertical", 4, 3, 33, 3))
sketch6.addConstraint(Sketcher.Constraint("Vertical", 33, 3, 34, 3))
sketch6.addConstraint(Sketcher.Constraint("Vertical", 34, 3, 35, 3))
sketch6.addConstraint(Sketcher.Constraint("Vertical", 35, 3, 36, 3))
sketch6.addConstraint(Sketcher.Constraint("Vertical", 12, 3, 37, 3))
sketch6.addConstraint(Sketcher.Constraint("Vertical", 37, 3, 38, 3))
sketch6.addConstraint(Sketcher.Constraint("Vertical", 38, 3, 39, 3))
sketch6.addConstraint(Sketcher.Constraint("Vertical", 39, 3, 40, 3))
sketch6.addConstraint(Sketcher.Constraint("Vertical", 5, 3, 41, 3))
sketch6.addConstraint(Sketcher.Constraint("Vertical", 41, 3, 42, 3))
sketch6.addConstraint(Sketcher.Constraint("Vertical", 42, 3, 43, 3))
sketch6.addConstraint(Sketcher.Constraint("Vertical", 43, 3, 44, 3))
sketch6.addConstraint(Sketcher.Constraint("Diameter", 0, Q("0.0625 in")))
sketch6.addConstraint(Sketcher.Constraint("DistanceY", -1, 1, 0, 3, Q("2 in")))
sketch6.addConstraint(Sketcher.Constraint("DistanceY", 3, 3, 6, 3, Q("1 in")))
sketch6.addConstraint(Sketcher.Constraint("DistanceY", -1, 1, 3, 3, Q("1.5 in")))
sketch6.addConstraint(Sketcher.Constraint("DistanceX", 5, 3, 2, 3, Q("1.5 in")))
sketch6.addConstraint(Sketcher.Constraint("DistanceX", 0, 3, 9, 3, Q("1.5 in")))
sketch6.addConstraint(Sketcher.Constraint("DistanceX", 10, 3, 0, 3, Q("1.5 in")))
sketch6.addConstraint(Sketcher.Constraint("DistanceX", 4, 3, 2, 3, Q("2.25 in")))
sketch6.addConstraint(Sketcher.Constraint("DistanceX", 0, 3, 7, 3, Q("0.75 in")))
sketch6.addConstraint(Sketcher.Constraint("DistanceX", 11, 3, 2, 3, Q("0.75 in")))
sketch6.addConstraint(Sketcher.Constraint("DistanceX", 12, 3, 0, 3, Q("0.75 in")))
sketch6.addConstraint(Sketcher.Constraint("DistanceX", -1, 1, 0, 3, Q("2.34375 in")))
sketch6.addConstraint(Sketcher.Constraint("DistanceY", -1, 1, 1, 3, Q("3.125 in")))
sketch6.addConstraint(Sketcher.Constraint("DistanceX", -1, 1, 2, 3, Q("3.46875 in")))
sketch6.addConstraint(Sketcher.Constraint("DistanceY", -1, 1, 8, 3, Q("0.875 in")))
sketch6.setExpression("Constraints[120]", "Params.sketch6_diameter")
pocket2 = body.newObject("PartDesign::Pocket", "Pocket001")
pocket2.Profile = sketch6
pocket2.setExpression("Length", "Params.pocket2_length")

doc.recompute()
